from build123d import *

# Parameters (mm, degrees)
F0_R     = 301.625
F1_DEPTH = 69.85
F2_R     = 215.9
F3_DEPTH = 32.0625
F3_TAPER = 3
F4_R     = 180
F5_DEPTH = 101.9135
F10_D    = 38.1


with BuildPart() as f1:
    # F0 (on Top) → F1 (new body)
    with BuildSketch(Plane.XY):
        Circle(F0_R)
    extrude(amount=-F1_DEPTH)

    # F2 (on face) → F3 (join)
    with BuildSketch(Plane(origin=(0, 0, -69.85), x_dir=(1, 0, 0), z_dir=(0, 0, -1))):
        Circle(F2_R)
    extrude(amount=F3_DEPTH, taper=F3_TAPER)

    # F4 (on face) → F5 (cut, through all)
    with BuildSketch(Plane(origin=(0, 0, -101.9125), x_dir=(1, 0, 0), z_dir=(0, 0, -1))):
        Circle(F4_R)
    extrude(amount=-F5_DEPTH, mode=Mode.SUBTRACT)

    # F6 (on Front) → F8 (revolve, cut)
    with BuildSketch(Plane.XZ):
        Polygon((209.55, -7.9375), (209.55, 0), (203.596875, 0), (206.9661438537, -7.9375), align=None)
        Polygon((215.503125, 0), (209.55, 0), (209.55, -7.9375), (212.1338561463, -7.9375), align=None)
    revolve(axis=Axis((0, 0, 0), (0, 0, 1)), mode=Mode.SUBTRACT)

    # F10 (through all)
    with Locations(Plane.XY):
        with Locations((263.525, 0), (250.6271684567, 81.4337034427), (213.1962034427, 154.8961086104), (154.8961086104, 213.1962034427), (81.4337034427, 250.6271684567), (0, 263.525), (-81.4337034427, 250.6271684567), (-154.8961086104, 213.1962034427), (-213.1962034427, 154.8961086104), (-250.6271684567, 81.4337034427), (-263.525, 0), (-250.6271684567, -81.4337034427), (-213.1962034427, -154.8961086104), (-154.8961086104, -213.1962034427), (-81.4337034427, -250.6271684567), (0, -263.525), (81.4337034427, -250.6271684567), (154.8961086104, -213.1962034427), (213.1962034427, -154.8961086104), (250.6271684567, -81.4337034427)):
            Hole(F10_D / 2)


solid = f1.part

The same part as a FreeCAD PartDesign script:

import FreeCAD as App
import Part
import Sketcher
Q = App.Units.Quantity


def add_polygon(sketch, points):
    """Adds a closed chain of lines whose ends are joined by coincident constraints."""
    first, n = sketch.GeometryCount, len(points)
    for a, b in zip(points, points[1:] + points[:1]):
        sketch.addGeometry(Part.LineSegment(App.Vector(*a, 0), App.Vector(*b, 0)), False)
    for i in range(n):
        sketch.addConstraint(Sketcher.Constraint("Coincident", first + i, 2, first + (i + 1) % n, 1))

doc = App.newDocument("Part")
body = doc.addObject("PartDesign::Body", "Body")

# Sketch on XY plane
sketch1 = body.newObject("Sketcher::SketchObject", "Sketch")
sketch1.AttachmentSupport = (doc.getObject("XY_Plane"), [""])
sketch1.MapMode = "FlatFace"
sketch1.addGeometry(Part.Circle(App.Vector(0, 0, 0), App.Vector(0, 0, 1), 302), False)
sketch1.addConstraint([
    Sketcher.Constraint("Coincident", 0, 3, -1, 1),
    Sketcher.Constraint("Diameter", 0, Q("23.75 in")),
])
pad1 = body.newObject("PartDesign::Pad", "Pad")
pad1.Profile = sketch1
pad1.Length = Q("2.75 in")
pad1.Reversed = True

# Sketch on XY plane
sketch2 = body.newObject("Sketcher::SketchObject", "Sketch001")
sketch2.AttachmentSupport = (doc.getObject("XY_Plane"), [""])
sketch2.MapMode = "FlatFace"
sketch2.AttachmentOffset = App.Placement(App.Vector(0, 0, -2.75 * 25.4), App.Rotation())
sketch2.addGeometry(Part.Circle(App.Vector(0, 0, 0), App.Vector(0, 0, 1), 216), False)
sketch2.addConstraint([
    Sketcher.Constraint("Coincident", 0, 3, -1, 1),
    Sketcher.Constraint("Diameter", 0, Q("17 in")),
])
pad2 = body.newObject("PartDesign::Pad", "Pad001")
pad2.Profile = sketch2
pad2.Length = 32.0625
pad2.Reversed = True
pad2.TaperAngle = -3

# Sketch on XY plane
sketch3 = body.newObject("Sketcher::SketchObject", "Sketch002")
sketch3.AttachmentSupport = (doc.getObject("XY_Plane"), [""])
sketch3.MapMode = "FlatFace"
sketch3.AttachmentOffset = App.Placement(App.Vector(0, 0, -101.9125), App.Rotation())
sketch3.addGeometry(Part.Circle(App.Vector(0, 0, 0), App.Vector(0, 0, 1), 180), False)
sketch3.addConstraint([
    Sketcher.Constraint("Coincident", 0, 3, -1, 1),
    Sketcher.Constraint("Diameter", 0, 360.0),
])
pocket1 = body.newObject("PartDesign::Pocket", "Pocket")
pocket1.Profile = sketch3
pocket1.Type = "ThroughAll"
pocket1.Reversed = True

# Sketch on XZ plane
sketch4 = body.newObject("Sketcher::SketchObject", "Sketch003")
sketch4.AttachmentSupport = (doc.getObject("XZ_Plane"), [""])
sketch4.MapMode = "FlatFace"
add_polygon(sketch4, [(204, 0), (207, -8), (212, -8), (216, 0)])  # lines 0-3
sketch4.addConstraint([
    Sketcher.Constraint("Horizontal", 1),
    Sketcher.Constraint("Horizontal", 3),
    Sketcher.Constraint("PointOnObject", 2, 2, -1),
    Sketcher.Constraint("Equal", 0, 2),
    Sketcher.Constraint("Angle", 0, Q("-67 deg")),
    Sketcher.Constraint("DistanceX", 3, 2, 3, 1, Q("0.46875 in")),
    Sketcher.Constraint("DistanceY", 0, 2, -1, 1, Q("0.3125 in")),
    Sketcher.Constraint("DistanceX", -1, 1, 2, 2, Q("8.484375 in")),
])
groove = body.newObject("PartDesign::Groove", "Groove")
groove.Profile = sketch4
groove.ReferenceAxis = (sketch4, ["V_Axis"])
groove.Angle = 360

# Sketch on XY plane
sketch5 = body.newObject("Sketcher::SketchObject", "Sketch004")
sketch5.AttachmentSupport = (doc.getObject("XY_Plane"), [""])
sketch5.MapMode = "FlatFace"
sketch5.addGeometry([
    Part.Circle(App.Vector(264, 0, 0), App.Vector(0, 0, 1), 19),  # 0
    Part.Circle(App.Vector(251, 81, 0), App.Vector(0, 0, 1), 19),  # 1
    Part.Circle(App.Vector(213, 155, 0), App.Vector(0, 0, 1), 19),  # 2
    Part.Circle(App.Vector(155, 213, 0), App.Vector(0, 0, 1), 19),  # 3
    Part.Circle(App.Vector(81, 251, 0), App.Vector(0, 0, 1), 19),  # 4
    Part.Circle(App.Vector(0, 264, 0), App.Vector(0, 0, 1), 19),  # 5
    Part.Circle(App.Vector(-81, 251, 0), App.Vector(0, 0, 1), 19),  # 6
    Part.Circle(App.Vector(-155, 213, 0), App.Vector(0, 0, 1), 19),  # 7
    Part.Circle(App.Vector(-213, 155, 0), App.Vector(0, 0, 1), 19),  # 8
    Part.Circle(App.Vector(-251, 81, 0), App.Vector(0, 0, 1), 19),  # 9
    Part.Circle(App.Vector(-264, 0, 0), App.Vector(0, 0, 1), 19),  # 10
    Part.Circle(App.Vector(-251, -81, 0), App.Vector(0, 0, 1), 19),  # 11
    Part.Circle(App.Vector(-213, -155, 0), App.Vector(0, 0, 1), 19),  # 12
    Part.Circle(App.Vector(-155, -213, 0), App.Vector(0, 0, 1), 19),  # 13
    Part.Circle(App.Vector(-81, -251, 0), App.Vector(0, 0, 1), 19),  # 14
    Part.Circle(App.Vector(0, -264, 0), App.Vector(0, 0, 1), 19),  # 15
    Part.Circle(App.Vector(81, -251, 0), App.Vector(0, 0, 1), 19),  # 16
    Part.Circle(App.Vector(155, -213, 0), App.Vector(0, 0, 1), 19),  # 17
    Part.Circle(App.Vector(213, -155, 0), App.Vector(0, 0, 1), 19),  # 18
    Part.Circle(App.Vector(251, -81, 0), App.Vector(0, 0, 1), 19),  # 19
], False)
sketch5.addConstraint([
    Sketcher.Constraint("Equal", 0, 1),
    Sketcher.Constraint("Equal", 1, 2),
    Sketcher.Constraint("Equal", 2, 3),
    Sketcher.Constraint("Equal", 3, 4),
    Sketcher.Constraint("Equal", 4, 5),
    Sketcher.Constraint("Equal", 5, 6),
    Sketcher.Constraint("Equal", 6, 7),
    Sketcher.Constraint("Equal", 7, 8),
    Sketcher.Constraint("Equal", 8, 9),
    Sketcher.Constraint("Equal", 9, 10),
    Sketcher.Constraint("Equal", 10, 11),
    Sketcher.Constraint("Equal", 11, 12),
    Sketcher.Constraint("Equal", 12, 13),
    Sketcher.Constraint("Equal", 13, 14),
    Sketcher.Constraint("Equal", 14, 15),
    Sketcher.Constraint("Equal", 15, 16),
    Sketcher.Constraint("Equal", 16, 17),
    Sketcher.Constraint("Equal", 17, 18),
    Sketcher.Constraint("Equal", 18, 19),
    Sketcher.Constraint("Symmetric", 0, 3, 10, 3, -1, 1),
    Sketcher.Constraint("Symmetric", 1, 3, 11, 3, -1, 1),
    Sketcher.Constraint("Symmetric", 2, 3, 12, 3, -1, 1),
    Sketcher.Constraint("Symmetric", 3, 3, 13, 3, -1, 1),
    Sketcher.Constraint("Symmetric", 4, 3, 14, 3, -1, 1),
    Sketcher.Constraint("Symmetric", 5, 3, 15, 3, -1, 1),
    Sketcher.Constraint("Symmetric", 6, 3, 16, 3, -1, 1),
    Sketcher.Constraint("Symmetric", 7, 3, 17, 3, -1, 1),
    Sketcher.Constraint("Symmetric", 8, 3, 18, 3, -1, 1),
    Sketcher.Constraint("Symmetric", 9, 3, 19, 3, -1, 1),
    Sketcher.Constraint("Symmetric", 4, 3, 6, 3, -2),
    Sketcher.Constraint("Symmetric", 3, 3, 7, 3, -2),
    Sketcher.Constraint("Symmetric", 2, 3, 8, 3, -2),
    Sketcher.Constraint("Symmetric", 1, 3, 9, 3, -2),
    Sketcher.Constraint("PointOnObject", 0, 3, -1),
    Sketcher.Constraint("PointOnObject", 5, 3, -2),
    Sketcher.Constraint("Diameter", 0, Q("1.5 in")),
    Sketcher.Constraint("DistanceX", -1, 1, 0, 3, Q("10.375 in")),
    Sketcher.Constraint("DistanceY", -1, 1, 5, 3, Q("10.375 in")),
    Sketcher.Constraint("DistanceY", 1, 3, 3, 3, Q("5.1875 in")),
    Sketcher.Constraint("DistanceX", 4, 3, 2, 3, Q("5.1875 in")),
    Sketcher.Constraint("DistanceX", -1, 1, 1, 3, 250.627168),
    Sketcher.Constraint("DistanceY", -1, 1, 2, 3, 154.896109),
    Sketcher.Constraint("DistanceX", -1, 1, 3, 3, 154.896109),
    Sketcher.Constraint("DistanceY", -1, 1, 4, 3, 250.627168),
    Sketcher.Constraint("DistanceX", 6, 3, 1, 3, 332.060872),
    Sketcher.Constraint("DistanceY", 11, 3, 6, 3, 332.060872),
])
doc.recompute()
hole = body.newObject("PartDesign::Hole", "Hole")
hole.Profile = sketch5
hole.ThreadType = "None"
hole.Diameter = Q("1.5 in")
hole.DepthType = "ThroughAll"

doc.recompute()
